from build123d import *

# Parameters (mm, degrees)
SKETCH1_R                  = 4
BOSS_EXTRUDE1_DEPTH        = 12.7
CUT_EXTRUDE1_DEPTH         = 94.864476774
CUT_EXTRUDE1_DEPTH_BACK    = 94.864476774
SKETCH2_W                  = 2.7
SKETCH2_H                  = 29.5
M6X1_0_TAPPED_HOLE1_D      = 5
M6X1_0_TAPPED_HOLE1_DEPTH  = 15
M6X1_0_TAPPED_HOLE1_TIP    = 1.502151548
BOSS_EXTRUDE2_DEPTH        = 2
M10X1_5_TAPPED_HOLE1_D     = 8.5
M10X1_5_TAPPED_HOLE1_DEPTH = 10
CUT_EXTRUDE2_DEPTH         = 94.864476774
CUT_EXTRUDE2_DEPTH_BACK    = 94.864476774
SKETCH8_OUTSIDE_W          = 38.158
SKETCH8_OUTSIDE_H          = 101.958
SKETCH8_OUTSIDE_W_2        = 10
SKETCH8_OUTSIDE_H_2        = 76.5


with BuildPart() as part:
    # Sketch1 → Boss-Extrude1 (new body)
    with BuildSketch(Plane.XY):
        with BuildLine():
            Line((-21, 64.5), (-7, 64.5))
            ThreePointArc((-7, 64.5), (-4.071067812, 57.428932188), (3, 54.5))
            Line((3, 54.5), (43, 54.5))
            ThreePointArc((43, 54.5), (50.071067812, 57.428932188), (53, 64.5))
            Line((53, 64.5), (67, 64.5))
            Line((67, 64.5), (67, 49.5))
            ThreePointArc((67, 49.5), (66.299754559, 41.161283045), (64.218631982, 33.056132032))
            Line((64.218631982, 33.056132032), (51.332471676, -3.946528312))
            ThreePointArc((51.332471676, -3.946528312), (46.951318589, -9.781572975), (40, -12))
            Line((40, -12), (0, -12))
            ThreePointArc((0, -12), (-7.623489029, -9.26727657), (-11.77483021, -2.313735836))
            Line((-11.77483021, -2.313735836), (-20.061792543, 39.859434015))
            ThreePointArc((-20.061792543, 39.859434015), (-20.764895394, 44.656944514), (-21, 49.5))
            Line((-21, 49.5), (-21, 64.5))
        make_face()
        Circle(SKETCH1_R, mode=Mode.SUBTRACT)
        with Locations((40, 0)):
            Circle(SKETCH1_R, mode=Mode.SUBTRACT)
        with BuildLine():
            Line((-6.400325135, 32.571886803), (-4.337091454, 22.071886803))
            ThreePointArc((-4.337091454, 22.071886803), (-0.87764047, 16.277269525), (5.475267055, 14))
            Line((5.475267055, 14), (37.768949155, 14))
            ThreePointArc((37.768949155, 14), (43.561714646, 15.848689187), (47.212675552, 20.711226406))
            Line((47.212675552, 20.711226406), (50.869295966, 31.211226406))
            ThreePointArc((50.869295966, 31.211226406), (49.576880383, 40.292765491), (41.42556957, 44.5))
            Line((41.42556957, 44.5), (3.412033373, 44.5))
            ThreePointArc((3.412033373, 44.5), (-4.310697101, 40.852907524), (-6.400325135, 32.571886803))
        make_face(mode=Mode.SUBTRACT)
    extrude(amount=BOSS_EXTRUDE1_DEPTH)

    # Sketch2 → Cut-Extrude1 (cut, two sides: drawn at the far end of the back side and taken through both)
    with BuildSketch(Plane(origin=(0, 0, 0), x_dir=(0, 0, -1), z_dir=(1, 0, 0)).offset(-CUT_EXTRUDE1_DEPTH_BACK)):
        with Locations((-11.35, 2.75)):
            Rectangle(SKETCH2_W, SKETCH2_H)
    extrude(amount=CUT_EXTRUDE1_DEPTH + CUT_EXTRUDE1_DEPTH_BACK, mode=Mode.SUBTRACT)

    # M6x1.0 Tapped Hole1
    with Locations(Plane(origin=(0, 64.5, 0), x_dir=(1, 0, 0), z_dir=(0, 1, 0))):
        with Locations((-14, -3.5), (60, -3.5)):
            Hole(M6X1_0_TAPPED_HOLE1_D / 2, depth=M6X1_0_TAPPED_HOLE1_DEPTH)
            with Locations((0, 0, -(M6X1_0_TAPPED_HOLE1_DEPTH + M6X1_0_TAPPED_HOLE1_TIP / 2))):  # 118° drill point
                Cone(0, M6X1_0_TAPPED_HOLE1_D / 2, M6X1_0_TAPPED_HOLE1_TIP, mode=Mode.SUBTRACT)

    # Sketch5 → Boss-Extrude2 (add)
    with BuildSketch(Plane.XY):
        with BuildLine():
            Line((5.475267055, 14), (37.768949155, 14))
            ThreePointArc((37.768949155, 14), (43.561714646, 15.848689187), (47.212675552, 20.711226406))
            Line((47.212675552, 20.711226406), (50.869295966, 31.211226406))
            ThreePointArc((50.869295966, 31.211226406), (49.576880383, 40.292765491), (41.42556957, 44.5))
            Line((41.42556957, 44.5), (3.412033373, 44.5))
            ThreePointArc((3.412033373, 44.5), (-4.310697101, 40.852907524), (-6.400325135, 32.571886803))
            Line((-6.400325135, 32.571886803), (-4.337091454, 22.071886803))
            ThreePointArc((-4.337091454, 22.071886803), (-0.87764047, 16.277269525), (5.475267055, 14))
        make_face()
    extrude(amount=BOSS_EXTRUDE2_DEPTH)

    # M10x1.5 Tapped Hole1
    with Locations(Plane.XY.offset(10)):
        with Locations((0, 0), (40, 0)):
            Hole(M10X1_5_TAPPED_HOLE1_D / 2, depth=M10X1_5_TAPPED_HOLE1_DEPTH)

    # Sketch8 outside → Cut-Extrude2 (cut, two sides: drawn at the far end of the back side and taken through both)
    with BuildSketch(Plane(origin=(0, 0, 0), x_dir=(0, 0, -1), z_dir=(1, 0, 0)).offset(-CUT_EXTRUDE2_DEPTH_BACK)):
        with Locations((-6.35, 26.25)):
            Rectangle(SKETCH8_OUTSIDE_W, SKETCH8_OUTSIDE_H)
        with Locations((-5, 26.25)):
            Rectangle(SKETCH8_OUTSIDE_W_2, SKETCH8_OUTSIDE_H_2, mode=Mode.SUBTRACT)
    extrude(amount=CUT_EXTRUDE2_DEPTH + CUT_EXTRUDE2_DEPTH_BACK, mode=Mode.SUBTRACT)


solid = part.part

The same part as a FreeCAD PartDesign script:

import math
import FreeCAD as App
import Part
import Sketcher
from FreeCAD import Vector
Q = App.Units.Quantity

doc = App.newDocument("Part")
body = doc.addObject("PartDesign::Body", "Body")

# Sketch on XY plane
sketch1 = doc.addObject("Sketcher::SketchObject", "Sketch")
body.addObject(sketch1)
sketch1.AttachmentSupport = (doc.XY_Plane, [""])
sketch1.MapMode = "FlatFace"
sketch1.addGeometry([
    Part.LineSegment(Vector(-7, 64.5, 0), Vector(-21, 64.5, 0)),  # 0
    Part.LineSegment(Vector(-21, 64.5, 0), Vector(-21, 49.5, 0)),  # 1
    Part.ArcOfCircle(Part.Circle(Vector(29, 49.5, 0), Vector(0, 0, 1), 50), math.radians(180), math.radians(191.116895)),  # 2
    Part.LineSegment(Vector(-20.061793, 39.859434, 0), Vector(-11.77483, -2.313736, 0)),  # 3
    Part.ArcOfCircle(Part.Circle(Vector(0, 0, 0), Vector(0, 0, 1), 12), math.radians(-168.883105), math.radians(-90)),  # 4
    Part.LineSegment(Vector(0, -12, 0), Vector(40, -12, 0)),  # 5
    Part.ArcOfCircle(Part.Circle(Vector(40, 0, 0), Vector(0, 0, 1), 12), math.radians(-90), math.radians(-19.20065)),  # 6
    Part.LineSegment(Vector(51.332472, -3.946528, 0), Vector(64.218632, 33.056132, 0)),  # 7
    Part.ArcOfCircle(Part.Circle(Vector(17, 49.5, 0), Vector(0, 0, 1), 50), math.radians(-19.20065), math.radians(0)),  # 8
    Part.LineSegment(Vector(67, 49.5, 0), Vector(67, 64.5, 0)),  # 9
    Part.LineSegment(Vector(67, 64.5, 0), Vector(53, 64.5, 0)),  # 10
    Part.ArcOfCircle(Part.Circle(Vector(43, 64.5, 0), Vector(0, 0, 1), 10), math.radians(-90), math.radians(0)),  # 11
    Part.LineSegment(Vector(43, 54.5, 0), Vector(3, 54.5, 0)),  # 12
    Part.ArcOfCircle(Part.Circle(Vector(3, 64.5, 0), Vector(0, 0, 1), 10), math.radians(180), math.radians(270)),  # 13
    Part.Circle(Vector(40, 0, 0), Vector(0, 0, 1), 4),  # 14
    Part.Circle(Vector(0, 0, 0), Vector(0, 0, 1), 4),  # 15
    Part.ArcOfCircle(Part.Circle(Vector(3.412033, 34.5, 0), Vector(0, 0, 1), 10), math.radians(90), math.radians(191.116895)),  # 16
    Part.LineSegment(Vector(3.412033, 44.5, 0), Vector(41.42557, 44.5, 0)),  # 17
    Part.ArcOfCircle(Part.Circle(Vector(41.42557, 34.5, 0), Vector(0, 0, 1), 10), math.radians(-19.20065), math.radians(90)),  # 18
    Part.LineSegment(Vector(50.869296, 31.211226, 0), Vector(47.212676, 20.711226, 0)),  # 19
    Part.ArcOfCircle(Part.Circle(Vector(37.768949, 24, 0), Vector(0, 0, 1), 10), math.radians(-90), math.radians(-19.20065)),  # 20
    Part.LineSegment(Vector(37.768949, 14, 0), Vector(5.475267, 14, 0)),  # 21
    Part.ArcOfCircle(Part.Circle(Vector(5.475267, 24, 0), Vector(0, 0, 1), 10), math.radians(-168.883105), math.radians(-90)),  # 22
    Part.LineSegment(Vector(-4.337091, 22.071887, 0), Vector(-6.400325, 32.571887, 0)),  # 23
], False)
sketch1.addConstraint([
    Sketcher.Constraint("Coincident", 0, 2, 1, 1),
    Sketcher.Constraint("Tangent", 1, 2, 2, 1),
    Sketcher.Constraint("Tangent", 2, 2, 3, 1),
    Sketcher.Constraint("Tangent", 3, 2, 4, 1),
    Sketcher.Constraint("Tangent", 4, 2, 5, 1),
    Sketcher.Constraint("Tangent", 5, 2, 6, 1),
    Sketcher.Constraint("Tangent", 6, 2, 7, 1),
    Sketcher.Constraint("Tangent", 7, 2, 8, 1),
    Sketcher.Constraint("Tangent", 8, 2, 9, 1),
    Sketcher.Constraint("Coincident", 9, 2, 10, 1),
    Sketcher.Constraint("Coincident", 10, 2, 11, 2),
    Sketcher.Constraint("Tangent", 11, 1, 12, 1),
    Sketcher.Constraint("Tangent", 12, 2, 13, 2),
    Sketcher.Constraint("Coincident", 13, 1, 0, 1),
    Sketcher.Constraint("Tangent", 16, 1, 17, 1),
    Sketcher.Constraint("Tangent", 17, 2, 18, 2),
    Sketcher.Constraint("Tangent", 18, 1, 19, 1),
    Sketcher.Constraint("Tangent", 19, 2, 20, 2),
    Sketcher.Constraint("Tangent", 20, 1, 21, 1),
    Sketcher.Constraint("Tangent", 21, 2, 22, 2),
    Sketcher.Constraint("Tangent", 22, 1, 23, 1),
    Sketcher.Constraint("Tangent", 23, 2, 16, 2),
    Sketcher.Constraint("Horizontal", 0),
    Sketcher.Constraint("Vertical", 1),
    Sketcher.Constraint("Horizontal", 5),
    Sketcher.Constraint("Vertical", 9),
    Sketcher.Constraint("Horizontal", 10),
    Sketcher.Constraint("Horizontal", 12),
    Sketcher.Constraint("Horizontal", 17),
    Sketcher.Constraint("Horizontal", 21),
    Sketcher.Constraint("Coincident", 4, 3, -1, 1),
    Sketcher.Constraint("Coincident", 15, 3, -1, 1),
    Sketcher.Constraint("Coincident", 14, 3, 6, 3),
    Sketcher.Constraint("Equal", 4, 6),
    Sketcher.Constraint("Equal", 2, 8),
    Sketcher.Constraint("Equal", 11, 13),
    Sketcher.Constraint("Equal", 14, 15),
    Sketcher.Constraint("Equal", 13, 16),
    Sketcher.Constraint("Equal", 16, 18),
    Sketcher.Constraint("Equal", 18, 20),
    Sketcher.Constraint("Equal", 20, 22),
    Sketcher.Constraint("Parallel", 7, 19),
    Sketcher.Constraint("Parallel", 3, 23),
    Sketcher.Constraint("Horizontal", 2, 3, 8, 3),
    Sketcher.Constraint("Horizontal", 13, 3, 0, 2),
    Sketcher.Constraint("Horizontal", 0, 2, 9, 2),
    Sketcher.Constraint("Equal", 0, 10),
    Sketcher.Constraint("Equal", 5, 12),
    Sketcher.Constraint("Diameter", 14, Q("8 mm")),
    Sketcher.Constraint("Radius", 2, Q("50 mm")),
    Sketcher.Constraint("Radius", 4, Q("12 mm")),
    Sketcher.Constraint("Radius", 11, Q("10 mm")),
    Sketcher.Constraint("DistanceX", 0, 2, 0, 1, Q("14 mm")),
    Sketcher.Constraint("DistanceX", 5, 1, 5, 2, Q("40 mm")),
    Sketcher.Constraint("DistanceY", 1, 2, 1, 1, Q("15 mm")),
    Sketcher.Constraint("DistanceX", -1, 1, 2, 3, Q("29 mm")),
    Sketcher.Constraint("DistanceY", -1, 1, 20, 3, Q("24 mm")),
    Sketcher.Constraint("DistanceY", 16, 3, 8, 3, Q("15 mm")),
    Sketcher.Constraint("DistanceY", -1, 1, 2, 3, Q("49.5 mm")),
    Sketcher.Constraint("DistanceX", 17, 1, 17, 2, Q("38.013536 mm")),
    Sketcher.Constraint("DistanceX", -1, 1, 18, 3, Q("41.42557 mm")),
])
pad1 = doc.addObject("PartDesign::Pad", "Pad")
body.addObject(pad1)
pad1.Profile = sketch1
pad1.Length = 12.7

# Sketch on YZ plane
sketch2 = doc.addObject("Sketcher::SketchObject", "Sketch001")
body.addObject(sketch2)
sketch2.AttachmentSupport = (doc.YZ_Plane, [""])
sketch2.MapMode = "FlatFace"
sketch2.addGeometry([
    Part.LineSegment(Vector(17.5, 12.7, 0), Vector(-12, 12.7, 0)),
    Part.LineSegment(Vector(-12, 12.7, 0), Vector(-12, 10, 0)),
    Part.LineSegment(Vector(-12, 10, 0), Vector(17.5, 10, 0)),
    Part.LineSegment(Vector(17.5, 10, 0), Vector(17.5, 12.7, 0)),
], False)
sketch2.addConstraint([
    Sketcher.Constraint("Coincident", 0, 2, 1, 1),
    Sketcher.Constraint("Coincident", 1, 2, 2, 1),
    Sketcher.Constraint("Coincident", 2, 2, 3, 1),
    Sketcher.Constraint("Coincident", 3, 2, 0, 1),
    Sketcher.Constraint("Horizontal", 0),
    Sketcher.Constraint("Vertical", 1),
    Sketcher.Constraint("Horizontal", 2),
    Sketcher.Constraint("Vertical", 3),
    Sketcher.Constraint("DistanceX", 0, 2, 0, 1, Q("29.5 mm")),
    Sketcher.Constraint("DistanceY", 1, 2, 1, 1, Q("2.7 mm")),
    Sketcher.Constraint("DistanceX", 0, 2, -1, 1, Q("12 mm")),
    Sketcher.Constraint("DistanceY", -1, 1, 1, 2, Q("10 mm")),
])
pocket1 = doc.addObject("PartDesign::Pocket", "Pocket")
body.addObject(pocket1)
pocket1.Profile = sketch2
pocket1.Type = "ThroughAll"
pocket1.Midplane = True

# Sketch on XZ plane
sketch3 = doc.addObject("Sketcher::SketchObject", "Sketch002")
body.addObject(sketch3)
sketch3.AttachmentSupport = (doc.XZ_Plane, [""])
sketch3.MapMode = "FlatFace"
sketch3.AttachmentOffset = App.Placement(Vector(0, 0, -64.5), App.Rotation())
sketch3.addGeometry([
    Part.Circle(Vector(-14, 3.5, 0), Vector(0, 0, 1), 2.5),
    Part.Circle(Vector(60, 3.5, 0), Vector(0, 0, 1), 2.5),
], False)
sketch3.addConstraint([
    Sketcher.Constraint("Equal", 0, 1),
    Sketcher.Constraint("Horizontal", 0, 3, 1, 3),
    Sketcher.Constraint("Diameter", 0, Q("5 mm")),
    Sketcher.Constraint("DistanceX", 0, 3, -1, 1, Q("14 mm")),
    Sketcher.Constraint("DistanceX", -1, 1, 1, 3, Q("60 mm")),
    Sketcher.Constraint("DistanceY", -1, 1, 0, 3, Q("3.5 mm")),
])
doc.recompute()
hole = doc.addObject("PartDesign::Hole", "Hole")
body.addObject(hole)
hole.Profile = sketch3
hole.ThreadType = "None"
hole.Diameter = 5
hole.DepthType = "Dimension"
hole.Depth = 15
hole.DrillPoint = "Angled"
hole.DrillPointAngle = 118
hole.Reversed = True

# Sketch on XY plane
sketch4 = doc.addObject("Sketcher::SketchObject", "Sketch003")
body.addObject(sketch4)
sketch4.AttachmentSupport = (doc.XY_Plane, [""])
sketch4.MapMode = "FlatFace"
sketch4.addGeometry([
    Part.LineSegment(Vector(5.475267, 14, 0), Vector(37.768949, 14, 0)),  # 0
    Part.ArcOfCircle(Part.Circle(Vector(37.768949, 24, 0), Vector(0, 0, 1), 10), math.radians(-90), math.radians(-19.20065)),  # 1
    Part.LineSegment(Vector(47.212676, 20.711226, 0), Vector(50.869296, 31.211226, 0)),  # 2
    Part.ArcOfCircle(Part.Circle(Vector(41.42557, 34.5, 0), Vector(0, 0, 1), 10), math.radians(-19.20065), math.radians(90)),  # 3
    Part.LineSegment(Vector(41.42557, 44.5, 0), Vector(3.412033, 44.5, 0)),  # 4
    Part.ArcOfCircle(Part.Circle(Vector(3.412033, 34.5, 0), Vector(0, 0, 1), 10), math.radians(90), math.radians(191.116895)),  # 5
    Part.LineSegment(Vector(-6.400325, 32.571887, 0), Vector(-4.337091, 22.071887, 0)),  # 6
    Part.ArcOfCircle(Part.Circle(Vector(5.475267, 24, 0), Vector(0, 0, 1), 10), math.radians(-168.883105), math.radians(-90)),  # 7
], False)
sketch4.addConstraint([
    Sketcher.Constraint("Tangent", 0, 2, 1, 1),
    Sketcher.Constraint("Tangent", 1, 2, 2, 1),
    Sketcher.Constraint("Tangent", 2, 2, 3, 1),
    Sketcher.Constraint("Tangent", 3, 2, 4, 1),
    Sketcher.Constraint("Tangent", 4, 2, 5, 1),
    Sketcher.Constraint("Tangent", 5, 2, 6, 1),
    Sketcher.Constraint("Tangent", 6, 2, 7, 1),
    Sketcher.Constraint("Tangent", 7, 2, 0, 1),
    Sketcher.Constraint("Horizontal", 0),
    Sketcher.Constraint("Horizontal", 4),
    Sketcher.Constraint("Equal", 1, 3),
    Sketcher.Constraint("Equal", 3, 5),
    Sketcher.Constraint("Equal", 5, 7),
    Sketcher.Constraint("Radius", 1, Q("10 mm")),
    Sketcher.Constraint("DistanceY", -1, 1, 1, 3, Q("24 mm")),
    Sketcher.Constraint("DistanceY", -1, 1, 3, 3, Q("34.5 mm")),
    Sketcher.Constraint("Distance", 6, Q("10.700791 mm")),
    Sketcher.Constraint("DistanceX", 0, 1, 0, 2, Q("32.293682 mm")),
    Sketcher.Constraint("DistanceX", 4, 2, 4, 1, Q("38.013536 mm")),
    Sketcher.Constraint("DistanceX", -1, 1, 1, 3, Q("37.768949 mm")),
])
pad2 = doc.addObject("PartDesign::Pad", "Pad001")
body.addObject(pad2)
pad2.Profile = sketch4
pad2.Length = 2

# Sketch on XY plane
sketch5 = doc.addObject("Sketcher::SketchObject", "Sketch004")
body.addObject(sketch5)
sketch5.AttachmentSupport = (doc.XY_Plane, [""])
sketch5.MapMode = "FlatFace"
sketch5.AttachmentOffset = App.Placement(Vector(0, 0, 10), App.Rotation())
sketch5.addGeometry([
    Part.Circle(Vector(0, 0, 0), Vector(0, 0, 1), 4.25),
    Part.Circle(Vector(40, 0, 0), Vector(0, 0, 1), 4.25),
], False)
sketch5.addConstraint([
    Sketcher.Constraint("Coincident", 0, 3, -1, 1),
    Sketcher.Constraint("Equal", 0, 1),
    Sketcher.Constraint("PointOnObject", 1, 3, -1),
    Sketcher.Constraint("Diameter", 0, Q("8.5 mm")),
    Sketcher.Constraint("DistanceX", -1, 1, 1, 3, Q("40 mm")),
])
doc.recompute()
hole2 = doc.addObject("PartDesign::Hole", "Hole001")
body.addObject(hole2)
hole2.Profile = sketch5
hole2.ThreadType = "None"
hole2.Diameter = 8.5
hole2.DepthType = "Dimension"
hole2.Depth = 10
hole2.DrillPoint = "Flat"

# Sketch on YZ plane
sketch6 = doc.addObject("Sketcher::SketchObject", "Sketch005")
body.addObject(sketch6)
sketch6.AttachmentSupport = (doc.YZ_Plane, [""])
sketch6.MapMode = "FlatFace"
sketch6.addGeometry([
    Part.LineSegment(Vector(77.229, 25.429, 0), Vector(-24.729, 25.429, 0)),  # 0
    Part.LineSegment(Vector(-24.729, 25.429, 0), Vector(-24.729, -12.729, 0)),  # 1
    Part.LineSegment(Vector(-24.729, -12.729, 0), Vector(77.229, -12.729, 0)),  # 2
    Part.LineSegment(Vector(77.229, -12.729, 0), Vector(77.229, 25.429, 0)),  # 3
    Part.LineSegment(Vector(-12, 0, 0), Vector(-12, 10, 0)),  # 4
    Part.LineSegment(Vector(-12, 10, 0), Vector(64.5, 10, 0)),  # 5
    Part.LineSegment(Vector(64.5, 10, 0), Vector(64.5, 0, 0)),  # 6
    Part.LineSegment(Vector(64.5, 0, 0), Vector(-12, 0, 0)),  # 7
], False)
sketch6.addConstraint([
    Sketcher.Constraint("Coincident", 0, 2, 1, 1),
    Sketcher.Constraint("Coincident", 1, 2, 2, 1),
    Sketcher.Constraint("Coincident", 2, 2, 3, 1),
    Sketcher.Constraint("Coincident", 3, 2, 0, 1),
    Sketcher.Constraint("Coincident", 4, 2, 5, 1),
    Sketcher.Constraint("Coincident", 5, 2, 6, 1),
    Sketcher.Constraint("Coincident", 6, 2, 7, 1),
    Sketcher.Constraint("Coincident", 7, 2, 4, 1),
    Sketcher.Constraint("Horizontal", 0),
    Sketcher.Constraint("Vertical", 1),
    Sketcher.Constraint("Horizontal", 2),
    Sketcher.Constraint("Vertical", 3),
    Sketcher.Constraint("Vertical", 4),
    Sketcher.Constraint("Horizontal", 5),
    Sketcher.Constraint("Vertical", 6),
    Sketcher.Constraint("Horizontal", 7),
    Sketcher.Constraint("PointOnObject", 6, 2, -1),
    Sketcher.Constraint("DistanceY", 4, 1, 4, 2, Q("10 mm")),
    Sketcher.Constraint("DistanceX", 5, 1, 5, 2, Q("76.5 mm")),
    Sketcher.Constraint("DistanceX", 4, 2, -1, 1, Q("12 mm")),
    Sketcher.Constraint("DistanceX", 0, 2, 0, 1, Q("101.958 mm")),
    Sketcher.Constraint("DistanceY", 1, 2, 1, 1, Q("38.158 mm")),
    Sketcher.Constraint("DistanceX", 0, 2, -1, 1, Q("24.729 mm")),
    Sketcher.Constraint("DistanceY", -1, 1, 0, 2, Q("25.429 mm")),
])
pocket2 = doc.addObject("PartDesign::Pocket", "Pocket001")
body.addObject(pocket2)
pocket2.Profile = sketch6
pocket2.Type = "ThroughAll"
pocket2.Midplane = True

doc.recompute()
